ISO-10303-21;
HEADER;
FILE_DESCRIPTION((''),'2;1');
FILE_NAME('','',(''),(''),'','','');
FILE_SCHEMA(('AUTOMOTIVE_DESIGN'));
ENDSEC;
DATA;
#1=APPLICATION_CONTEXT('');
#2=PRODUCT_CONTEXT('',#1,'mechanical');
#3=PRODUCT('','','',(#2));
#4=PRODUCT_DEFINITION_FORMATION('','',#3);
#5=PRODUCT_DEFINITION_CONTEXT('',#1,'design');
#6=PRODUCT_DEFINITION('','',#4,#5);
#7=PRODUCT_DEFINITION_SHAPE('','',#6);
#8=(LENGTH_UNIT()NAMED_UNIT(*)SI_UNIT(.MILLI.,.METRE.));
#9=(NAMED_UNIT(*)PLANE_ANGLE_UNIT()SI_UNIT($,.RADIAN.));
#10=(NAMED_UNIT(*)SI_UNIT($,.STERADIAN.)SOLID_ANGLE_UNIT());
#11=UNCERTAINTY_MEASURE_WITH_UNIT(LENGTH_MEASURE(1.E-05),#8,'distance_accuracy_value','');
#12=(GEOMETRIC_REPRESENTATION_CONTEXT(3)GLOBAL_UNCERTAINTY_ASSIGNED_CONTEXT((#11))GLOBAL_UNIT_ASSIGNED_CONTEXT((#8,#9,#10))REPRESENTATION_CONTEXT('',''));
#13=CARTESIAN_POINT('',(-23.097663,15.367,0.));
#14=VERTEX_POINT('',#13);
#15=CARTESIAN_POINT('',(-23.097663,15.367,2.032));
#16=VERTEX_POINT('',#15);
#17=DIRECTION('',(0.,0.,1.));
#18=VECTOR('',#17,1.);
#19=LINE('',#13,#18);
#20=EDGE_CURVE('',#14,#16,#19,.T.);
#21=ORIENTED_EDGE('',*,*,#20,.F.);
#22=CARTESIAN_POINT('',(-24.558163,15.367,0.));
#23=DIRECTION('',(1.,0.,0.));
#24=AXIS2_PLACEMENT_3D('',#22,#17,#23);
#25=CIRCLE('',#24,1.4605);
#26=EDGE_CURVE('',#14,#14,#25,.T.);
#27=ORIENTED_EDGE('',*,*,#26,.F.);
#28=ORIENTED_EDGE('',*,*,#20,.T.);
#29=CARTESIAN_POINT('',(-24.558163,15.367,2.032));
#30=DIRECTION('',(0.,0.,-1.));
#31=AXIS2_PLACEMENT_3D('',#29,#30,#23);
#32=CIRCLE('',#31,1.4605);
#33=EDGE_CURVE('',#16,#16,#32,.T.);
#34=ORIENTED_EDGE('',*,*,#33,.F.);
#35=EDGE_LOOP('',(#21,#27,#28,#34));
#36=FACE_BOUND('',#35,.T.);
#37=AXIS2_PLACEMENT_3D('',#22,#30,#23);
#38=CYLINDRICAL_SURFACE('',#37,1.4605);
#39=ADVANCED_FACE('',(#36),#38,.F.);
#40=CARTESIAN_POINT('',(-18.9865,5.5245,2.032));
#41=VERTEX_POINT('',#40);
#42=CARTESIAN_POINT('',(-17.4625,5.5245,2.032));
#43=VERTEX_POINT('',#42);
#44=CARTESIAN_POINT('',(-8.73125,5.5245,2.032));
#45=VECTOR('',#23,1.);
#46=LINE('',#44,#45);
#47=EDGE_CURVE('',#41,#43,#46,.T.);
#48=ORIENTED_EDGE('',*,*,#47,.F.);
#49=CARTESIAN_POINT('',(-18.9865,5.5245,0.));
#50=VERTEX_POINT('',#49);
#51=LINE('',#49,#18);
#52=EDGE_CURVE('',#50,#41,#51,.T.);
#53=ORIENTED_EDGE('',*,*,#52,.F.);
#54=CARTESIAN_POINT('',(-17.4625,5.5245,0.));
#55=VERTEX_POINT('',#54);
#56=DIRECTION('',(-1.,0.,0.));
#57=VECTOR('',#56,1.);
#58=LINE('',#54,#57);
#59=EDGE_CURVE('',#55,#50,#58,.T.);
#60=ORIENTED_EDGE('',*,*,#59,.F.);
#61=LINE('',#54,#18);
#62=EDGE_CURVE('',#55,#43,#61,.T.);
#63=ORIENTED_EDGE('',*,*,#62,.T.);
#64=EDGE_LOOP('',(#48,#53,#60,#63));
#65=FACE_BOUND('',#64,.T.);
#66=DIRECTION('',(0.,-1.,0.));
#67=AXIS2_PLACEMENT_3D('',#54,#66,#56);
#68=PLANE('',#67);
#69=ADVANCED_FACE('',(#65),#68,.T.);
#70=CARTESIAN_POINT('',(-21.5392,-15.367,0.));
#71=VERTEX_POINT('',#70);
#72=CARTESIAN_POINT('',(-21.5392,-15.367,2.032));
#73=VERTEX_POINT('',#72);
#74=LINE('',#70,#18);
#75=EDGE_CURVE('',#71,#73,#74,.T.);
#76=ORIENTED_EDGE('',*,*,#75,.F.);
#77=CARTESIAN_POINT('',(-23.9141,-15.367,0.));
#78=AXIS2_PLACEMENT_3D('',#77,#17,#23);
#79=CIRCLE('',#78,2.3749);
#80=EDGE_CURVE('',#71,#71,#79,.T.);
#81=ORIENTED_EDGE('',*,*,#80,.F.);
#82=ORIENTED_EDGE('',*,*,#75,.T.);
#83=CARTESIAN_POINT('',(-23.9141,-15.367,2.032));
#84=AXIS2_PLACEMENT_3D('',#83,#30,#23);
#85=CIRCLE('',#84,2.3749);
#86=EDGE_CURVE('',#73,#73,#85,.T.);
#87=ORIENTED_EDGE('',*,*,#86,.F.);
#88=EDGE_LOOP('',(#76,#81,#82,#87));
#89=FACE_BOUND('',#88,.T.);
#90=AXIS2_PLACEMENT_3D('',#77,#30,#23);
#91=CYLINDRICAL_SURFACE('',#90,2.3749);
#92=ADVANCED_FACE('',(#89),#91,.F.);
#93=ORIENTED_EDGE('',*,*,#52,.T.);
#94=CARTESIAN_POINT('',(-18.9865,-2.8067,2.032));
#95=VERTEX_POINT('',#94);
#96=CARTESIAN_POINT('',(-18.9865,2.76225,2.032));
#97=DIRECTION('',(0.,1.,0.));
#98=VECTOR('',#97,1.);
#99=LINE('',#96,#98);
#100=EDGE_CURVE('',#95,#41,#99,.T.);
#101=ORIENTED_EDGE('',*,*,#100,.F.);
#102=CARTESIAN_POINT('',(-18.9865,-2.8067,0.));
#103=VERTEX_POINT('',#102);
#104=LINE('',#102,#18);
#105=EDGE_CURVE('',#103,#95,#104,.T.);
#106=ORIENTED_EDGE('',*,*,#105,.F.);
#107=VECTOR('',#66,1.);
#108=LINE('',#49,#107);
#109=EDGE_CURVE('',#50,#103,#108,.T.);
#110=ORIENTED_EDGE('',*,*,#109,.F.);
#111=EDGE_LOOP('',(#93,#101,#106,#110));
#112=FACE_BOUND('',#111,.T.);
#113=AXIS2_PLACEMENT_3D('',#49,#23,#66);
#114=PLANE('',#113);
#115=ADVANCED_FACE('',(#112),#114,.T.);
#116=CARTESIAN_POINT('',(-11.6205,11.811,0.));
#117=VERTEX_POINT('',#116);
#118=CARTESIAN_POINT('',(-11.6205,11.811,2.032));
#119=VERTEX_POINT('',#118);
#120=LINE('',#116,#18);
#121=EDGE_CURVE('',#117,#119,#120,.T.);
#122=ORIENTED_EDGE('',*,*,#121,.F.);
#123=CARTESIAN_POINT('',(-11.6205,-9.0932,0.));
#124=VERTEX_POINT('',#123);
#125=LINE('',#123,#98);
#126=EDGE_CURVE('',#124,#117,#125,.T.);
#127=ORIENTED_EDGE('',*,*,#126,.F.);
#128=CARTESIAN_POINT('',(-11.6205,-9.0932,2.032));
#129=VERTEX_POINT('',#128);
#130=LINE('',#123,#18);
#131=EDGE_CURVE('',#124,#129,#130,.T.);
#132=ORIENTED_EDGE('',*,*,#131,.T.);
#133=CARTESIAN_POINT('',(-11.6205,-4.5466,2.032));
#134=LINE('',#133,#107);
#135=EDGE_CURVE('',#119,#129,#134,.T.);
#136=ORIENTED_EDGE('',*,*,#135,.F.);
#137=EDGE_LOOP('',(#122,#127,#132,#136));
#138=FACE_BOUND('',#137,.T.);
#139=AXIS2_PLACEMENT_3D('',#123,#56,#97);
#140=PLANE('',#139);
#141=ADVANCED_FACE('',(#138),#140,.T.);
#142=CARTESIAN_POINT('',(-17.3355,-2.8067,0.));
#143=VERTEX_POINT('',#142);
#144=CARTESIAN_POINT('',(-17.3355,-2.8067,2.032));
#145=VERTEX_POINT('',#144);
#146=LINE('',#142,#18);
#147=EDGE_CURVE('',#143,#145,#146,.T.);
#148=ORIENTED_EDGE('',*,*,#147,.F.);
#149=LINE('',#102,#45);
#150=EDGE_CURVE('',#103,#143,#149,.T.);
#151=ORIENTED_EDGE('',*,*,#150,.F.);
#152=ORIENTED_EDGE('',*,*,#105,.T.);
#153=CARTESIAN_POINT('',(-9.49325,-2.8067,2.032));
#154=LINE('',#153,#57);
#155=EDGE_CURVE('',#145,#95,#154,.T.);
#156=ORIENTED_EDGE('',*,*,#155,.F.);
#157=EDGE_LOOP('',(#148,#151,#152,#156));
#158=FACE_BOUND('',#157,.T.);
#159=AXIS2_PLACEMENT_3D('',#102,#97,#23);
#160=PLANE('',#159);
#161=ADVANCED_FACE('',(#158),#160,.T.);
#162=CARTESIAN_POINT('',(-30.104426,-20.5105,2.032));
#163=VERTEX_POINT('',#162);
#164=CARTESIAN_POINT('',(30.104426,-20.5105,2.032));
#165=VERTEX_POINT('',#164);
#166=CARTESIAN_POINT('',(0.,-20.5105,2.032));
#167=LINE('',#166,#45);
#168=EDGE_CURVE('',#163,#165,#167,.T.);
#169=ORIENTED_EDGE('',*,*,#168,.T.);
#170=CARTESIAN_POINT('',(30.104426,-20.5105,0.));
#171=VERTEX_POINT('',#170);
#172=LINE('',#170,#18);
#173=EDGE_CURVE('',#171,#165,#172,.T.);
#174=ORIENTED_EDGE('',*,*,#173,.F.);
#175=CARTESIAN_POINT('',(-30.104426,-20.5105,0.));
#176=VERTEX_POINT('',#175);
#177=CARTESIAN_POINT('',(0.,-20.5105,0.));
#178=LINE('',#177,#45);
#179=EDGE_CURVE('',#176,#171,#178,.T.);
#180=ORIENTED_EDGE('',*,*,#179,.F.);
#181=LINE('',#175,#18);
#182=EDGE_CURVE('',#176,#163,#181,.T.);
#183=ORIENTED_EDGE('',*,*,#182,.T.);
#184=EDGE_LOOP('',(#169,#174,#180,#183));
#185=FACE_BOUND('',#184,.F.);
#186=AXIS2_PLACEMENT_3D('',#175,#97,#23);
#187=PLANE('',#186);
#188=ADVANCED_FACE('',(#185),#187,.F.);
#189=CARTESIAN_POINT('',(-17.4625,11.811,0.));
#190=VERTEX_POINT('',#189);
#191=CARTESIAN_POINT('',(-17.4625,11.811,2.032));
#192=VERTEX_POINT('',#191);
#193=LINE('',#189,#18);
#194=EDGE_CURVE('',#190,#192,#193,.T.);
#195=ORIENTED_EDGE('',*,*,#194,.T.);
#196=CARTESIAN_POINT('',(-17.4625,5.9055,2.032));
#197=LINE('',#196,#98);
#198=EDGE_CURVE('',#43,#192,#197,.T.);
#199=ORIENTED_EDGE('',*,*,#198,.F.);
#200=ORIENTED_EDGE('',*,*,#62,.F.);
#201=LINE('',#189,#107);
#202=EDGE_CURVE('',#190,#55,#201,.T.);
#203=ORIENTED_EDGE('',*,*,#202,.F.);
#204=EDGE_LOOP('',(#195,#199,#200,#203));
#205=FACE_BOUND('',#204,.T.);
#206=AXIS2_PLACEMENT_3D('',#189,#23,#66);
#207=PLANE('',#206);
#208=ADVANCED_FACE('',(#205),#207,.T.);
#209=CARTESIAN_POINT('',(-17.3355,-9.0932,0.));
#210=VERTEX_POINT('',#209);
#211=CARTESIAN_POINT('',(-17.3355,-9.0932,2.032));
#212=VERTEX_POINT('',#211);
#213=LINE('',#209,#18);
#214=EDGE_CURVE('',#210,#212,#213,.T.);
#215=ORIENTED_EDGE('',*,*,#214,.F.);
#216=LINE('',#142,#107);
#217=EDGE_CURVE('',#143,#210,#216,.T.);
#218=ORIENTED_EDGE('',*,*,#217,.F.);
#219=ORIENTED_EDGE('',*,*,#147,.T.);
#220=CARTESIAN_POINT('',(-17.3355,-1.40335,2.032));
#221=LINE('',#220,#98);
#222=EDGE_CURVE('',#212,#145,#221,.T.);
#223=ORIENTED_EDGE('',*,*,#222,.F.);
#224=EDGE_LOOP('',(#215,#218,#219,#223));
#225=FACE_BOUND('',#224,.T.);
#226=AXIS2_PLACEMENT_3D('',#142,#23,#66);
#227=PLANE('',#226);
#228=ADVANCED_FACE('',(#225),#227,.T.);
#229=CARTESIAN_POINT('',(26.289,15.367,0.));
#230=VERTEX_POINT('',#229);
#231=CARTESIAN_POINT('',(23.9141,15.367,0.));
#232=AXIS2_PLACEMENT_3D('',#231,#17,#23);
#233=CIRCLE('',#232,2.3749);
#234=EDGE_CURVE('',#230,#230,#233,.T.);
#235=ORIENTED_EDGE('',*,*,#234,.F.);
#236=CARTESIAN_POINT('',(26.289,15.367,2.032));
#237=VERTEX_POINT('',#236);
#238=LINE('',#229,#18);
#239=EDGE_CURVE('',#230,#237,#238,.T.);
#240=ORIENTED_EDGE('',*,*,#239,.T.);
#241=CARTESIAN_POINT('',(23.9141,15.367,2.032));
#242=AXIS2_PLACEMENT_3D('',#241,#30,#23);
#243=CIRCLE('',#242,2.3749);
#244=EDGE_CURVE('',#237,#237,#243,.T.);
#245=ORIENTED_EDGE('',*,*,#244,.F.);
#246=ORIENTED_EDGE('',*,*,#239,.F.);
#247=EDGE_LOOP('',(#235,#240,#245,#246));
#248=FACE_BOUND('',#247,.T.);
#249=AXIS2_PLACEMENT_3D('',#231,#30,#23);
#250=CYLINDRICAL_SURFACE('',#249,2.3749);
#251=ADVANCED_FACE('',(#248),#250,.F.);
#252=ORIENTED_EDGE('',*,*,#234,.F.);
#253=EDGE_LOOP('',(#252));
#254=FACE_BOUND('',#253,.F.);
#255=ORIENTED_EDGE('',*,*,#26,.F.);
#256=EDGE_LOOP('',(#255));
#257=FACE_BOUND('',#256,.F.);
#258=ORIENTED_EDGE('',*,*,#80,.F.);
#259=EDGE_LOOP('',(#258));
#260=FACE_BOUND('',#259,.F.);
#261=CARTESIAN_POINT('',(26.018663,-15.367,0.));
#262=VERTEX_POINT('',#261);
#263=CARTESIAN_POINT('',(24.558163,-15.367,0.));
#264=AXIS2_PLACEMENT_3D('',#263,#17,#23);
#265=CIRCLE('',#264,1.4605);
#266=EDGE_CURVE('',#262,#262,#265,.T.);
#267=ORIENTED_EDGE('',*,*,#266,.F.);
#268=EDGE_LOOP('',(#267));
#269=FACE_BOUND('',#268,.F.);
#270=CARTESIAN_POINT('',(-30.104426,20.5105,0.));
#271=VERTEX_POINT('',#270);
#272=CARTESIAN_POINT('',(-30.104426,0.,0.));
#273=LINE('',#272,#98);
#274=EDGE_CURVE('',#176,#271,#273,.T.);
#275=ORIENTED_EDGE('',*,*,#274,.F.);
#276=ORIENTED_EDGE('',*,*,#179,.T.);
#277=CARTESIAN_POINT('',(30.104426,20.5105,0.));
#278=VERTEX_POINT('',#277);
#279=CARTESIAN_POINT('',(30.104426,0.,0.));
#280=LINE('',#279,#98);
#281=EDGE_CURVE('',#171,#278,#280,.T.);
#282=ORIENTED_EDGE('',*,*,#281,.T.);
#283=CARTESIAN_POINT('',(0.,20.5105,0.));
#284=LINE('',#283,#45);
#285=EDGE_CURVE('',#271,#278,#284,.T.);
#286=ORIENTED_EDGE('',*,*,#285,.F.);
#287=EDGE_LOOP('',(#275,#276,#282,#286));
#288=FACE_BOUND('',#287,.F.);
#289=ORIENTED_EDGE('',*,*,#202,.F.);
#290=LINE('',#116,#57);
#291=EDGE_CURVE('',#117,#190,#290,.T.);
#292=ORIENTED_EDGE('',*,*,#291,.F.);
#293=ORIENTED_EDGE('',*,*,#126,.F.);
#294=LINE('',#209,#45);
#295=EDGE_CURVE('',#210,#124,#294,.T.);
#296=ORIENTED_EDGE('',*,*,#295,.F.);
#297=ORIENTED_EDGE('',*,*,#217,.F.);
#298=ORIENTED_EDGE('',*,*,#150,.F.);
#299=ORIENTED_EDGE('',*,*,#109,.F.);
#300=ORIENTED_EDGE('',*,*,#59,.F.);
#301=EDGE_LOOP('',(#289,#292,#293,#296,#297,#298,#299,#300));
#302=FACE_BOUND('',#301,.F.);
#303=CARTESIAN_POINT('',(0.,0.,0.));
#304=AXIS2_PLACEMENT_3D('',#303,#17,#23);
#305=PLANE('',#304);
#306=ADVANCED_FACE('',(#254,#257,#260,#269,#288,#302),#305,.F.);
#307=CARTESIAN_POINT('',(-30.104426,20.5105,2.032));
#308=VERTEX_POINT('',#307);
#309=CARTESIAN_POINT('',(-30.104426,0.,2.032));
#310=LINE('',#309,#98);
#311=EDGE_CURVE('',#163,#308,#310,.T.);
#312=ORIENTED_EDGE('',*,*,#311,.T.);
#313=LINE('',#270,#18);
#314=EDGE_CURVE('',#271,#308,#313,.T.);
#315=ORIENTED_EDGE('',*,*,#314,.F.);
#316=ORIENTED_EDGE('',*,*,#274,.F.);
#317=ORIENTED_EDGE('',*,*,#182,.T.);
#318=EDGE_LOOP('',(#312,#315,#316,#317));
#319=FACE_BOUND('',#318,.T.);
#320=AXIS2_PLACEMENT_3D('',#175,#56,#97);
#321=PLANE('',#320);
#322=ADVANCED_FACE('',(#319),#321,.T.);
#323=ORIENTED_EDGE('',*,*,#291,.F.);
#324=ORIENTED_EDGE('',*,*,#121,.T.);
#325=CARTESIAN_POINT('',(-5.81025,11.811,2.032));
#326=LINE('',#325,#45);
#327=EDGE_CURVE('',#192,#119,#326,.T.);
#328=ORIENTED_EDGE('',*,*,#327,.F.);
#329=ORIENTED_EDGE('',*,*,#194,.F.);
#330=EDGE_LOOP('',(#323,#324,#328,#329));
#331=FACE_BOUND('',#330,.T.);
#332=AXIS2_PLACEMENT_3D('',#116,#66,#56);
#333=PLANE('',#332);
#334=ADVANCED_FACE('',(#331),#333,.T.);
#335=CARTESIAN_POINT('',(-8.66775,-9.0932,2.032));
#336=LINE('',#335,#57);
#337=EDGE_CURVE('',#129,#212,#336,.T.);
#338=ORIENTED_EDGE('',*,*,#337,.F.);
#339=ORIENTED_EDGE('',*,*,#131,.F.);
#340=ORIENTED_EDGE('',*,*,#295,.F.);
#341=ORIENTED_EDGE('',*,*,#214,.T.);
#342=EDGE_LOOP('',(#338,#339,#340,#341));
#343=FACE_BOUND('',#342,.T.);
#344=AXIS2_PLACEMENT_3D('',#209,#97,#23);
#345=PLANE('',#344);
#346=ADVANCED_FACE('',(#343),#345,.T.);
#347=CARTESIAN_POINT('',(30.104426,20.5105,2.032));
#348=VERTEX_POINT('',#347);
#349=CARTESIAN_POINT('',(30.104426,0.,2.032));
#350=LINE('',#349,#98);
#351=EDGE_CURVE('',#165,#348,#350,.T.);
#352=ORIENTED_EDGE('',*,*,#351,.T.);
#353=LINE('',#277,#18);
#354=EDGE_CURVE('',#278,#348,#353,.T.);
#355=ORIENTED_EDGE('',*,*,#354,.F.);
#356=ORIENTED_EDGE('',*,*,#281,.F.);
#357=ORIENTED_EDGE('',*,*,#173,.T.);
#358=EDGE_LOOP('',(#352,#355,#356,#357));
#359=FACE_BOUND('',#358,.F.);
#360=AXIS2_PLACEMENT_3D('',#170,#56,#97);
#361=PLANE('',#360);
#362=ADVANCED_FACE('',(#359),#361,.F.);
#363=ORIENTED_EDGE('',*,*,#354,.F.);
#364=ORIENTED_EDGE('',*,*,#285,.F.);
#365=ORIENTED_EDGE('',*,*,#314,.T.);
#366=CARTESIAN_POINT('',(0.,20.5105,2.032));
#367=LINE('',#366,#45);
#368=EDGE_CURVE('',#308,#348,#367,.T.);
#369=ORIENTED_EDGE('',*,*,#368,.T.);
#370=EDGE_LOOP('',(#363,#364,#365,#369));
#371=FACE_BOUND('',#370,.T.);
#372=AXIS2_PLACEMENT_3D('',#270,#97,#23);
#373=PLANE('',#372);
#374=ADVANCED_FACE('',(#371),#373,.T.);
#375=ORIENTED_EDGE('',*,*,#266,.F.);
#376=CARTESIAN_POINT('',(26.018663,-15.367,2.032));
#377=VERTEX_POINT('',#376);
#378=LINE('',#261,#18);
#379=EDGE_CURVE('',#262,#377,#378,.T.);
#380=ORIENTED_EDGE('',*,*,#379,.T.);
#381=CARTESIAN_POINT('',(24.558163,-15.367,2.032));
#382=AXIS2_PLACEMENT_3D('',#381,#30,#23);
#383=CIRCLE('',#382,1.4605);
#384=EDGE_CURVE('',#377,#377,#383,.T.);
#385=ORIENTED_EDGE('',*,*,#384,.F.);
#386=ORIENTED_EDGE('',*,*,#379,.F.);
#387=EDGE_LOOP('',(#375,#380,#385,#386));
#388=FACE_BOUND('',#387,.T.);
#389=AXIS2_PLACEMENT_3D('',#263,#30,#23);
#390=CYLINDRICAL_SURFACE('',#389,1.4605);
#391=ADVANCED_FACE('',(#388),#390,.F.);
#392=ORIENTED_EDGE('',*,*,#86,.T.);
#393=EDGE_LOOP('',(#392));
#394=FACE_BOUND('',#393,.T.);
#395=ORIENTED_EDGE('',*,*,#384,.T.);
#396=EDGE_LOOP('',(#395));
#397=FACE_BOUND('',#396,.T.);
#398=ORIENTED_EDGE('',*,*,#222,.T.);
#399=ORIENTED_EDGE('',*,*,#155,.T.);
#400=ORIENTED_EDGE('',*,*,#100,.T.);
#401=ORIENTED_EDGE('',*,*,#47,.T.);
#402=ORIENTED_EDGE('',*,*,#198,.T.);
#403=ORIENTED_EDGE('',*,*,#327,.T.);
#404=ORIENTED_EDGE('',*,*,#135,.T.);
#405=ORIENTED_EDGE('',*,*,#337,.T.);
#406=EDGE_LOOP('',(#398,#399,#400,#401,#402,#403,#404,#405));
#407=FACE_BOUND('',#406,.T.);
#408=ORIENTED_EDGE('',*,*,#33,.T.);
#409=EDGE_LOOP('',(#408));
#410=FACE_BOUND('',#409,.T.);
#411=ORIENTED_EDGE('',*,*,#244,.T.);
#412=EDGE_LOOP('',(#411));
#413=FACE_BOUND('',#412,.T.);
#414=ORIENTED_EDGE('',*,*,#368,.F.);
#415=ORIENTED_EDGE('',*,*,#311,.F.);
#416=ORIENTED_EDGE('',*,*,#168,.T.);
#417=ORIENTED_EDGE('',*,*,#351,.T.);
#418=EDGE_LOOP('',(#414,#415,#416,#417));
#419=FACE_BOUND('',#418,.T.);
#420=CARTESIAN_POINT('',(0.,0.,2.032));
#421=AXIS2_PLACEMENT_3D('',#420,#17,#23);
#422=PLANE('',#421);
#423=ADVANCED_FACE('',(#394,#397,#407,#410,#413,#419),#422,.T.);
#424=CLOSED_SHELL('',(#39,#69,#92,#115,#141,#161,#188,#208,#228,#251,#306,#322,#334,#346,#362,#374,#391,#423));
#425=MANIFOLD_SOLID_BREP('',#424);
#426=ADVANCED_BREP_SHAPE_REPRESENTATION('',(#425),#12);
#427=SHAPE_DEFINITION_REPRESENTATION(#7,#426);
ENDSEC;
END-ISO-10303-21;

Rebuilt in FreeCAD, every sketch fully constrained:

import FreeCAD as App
import Part
import Sketcher

V = App.Vector
Q = App.Units.Quantity

doc = App.newDocument("Part")
body = doc.addObject("PartDesign::Body", "Body")

sketch1 = doc.addObject("Sketcher::SketchObject", "Sketch")
body.addObject(sketch1)
sketch1.AttachmentSupport = (doc.XY_Plane, [""])
sketch1.MapMode = "FlatFace"
sketch1.addGeometry(Part.LineSegment(V(-30, 21, 0), V(-30, -21, 0)), False)
sketch1.addGeometry(Part.LineSegment(V(-30, -21, 0), V(30, -21, 0)), False)
sketch1.addGeometry(Part.LineSegment(V(30, -21, 0), V(30, 21, 0)), False)
sketch1.addGeometry(Part.LineSegment(V(30, 21, 0), V(-30, 21, 0)), False)
sketch1.addConstraint(Sketcher.Constraint("Coincident", 0, 2, 1, 1))
sketch1.addConstraint(Sketcher.Constraint("Coincident", 1, 2, 2, 1))
sketch1.addConstraint(Sketcher.Constraint("Coincident", 2, 2, 3, 1))
sketch1.addConstraint(Sketcher.Constraint("Coincident", 3, 2, 0, 1))
sketch1.addConstraint(Sketcher.Constraint("Vertical", 0))
sketch1.addConstraint(Sketcher.Constraint("Horizontal", 1))
sketch1.addConstraint(Sketcher.Constraint("Vertical", 2))
sketch1.addConstraint(Sketcher.Constraint("Horizontal", 3))
sketch1.addConstraint(Sketcher.Constraint("Symmetric", 0, 2, 2, 2, -1, 1))
sketch1.addConstraint(Sketcher.Constraint("DistanceY", 0, 2, 0, 1, Q("1.615 in")))
sketch1.addConstraint(Sketcher.Constraint("DistanceX", 1, 1, 1, 2, Q("60.208851 mm")))
pad1 = doc.addObject("PartDesign::Pad", "Pad")
body.addObject(pad1)
pad1.Profile = sketch1
pad1.Length = Q("0.08 in")

sketch2 = doc.addObject("Sketcher::SketchObject", "Sketch001")
body.addObject(sketch2)
sketch2.AttachmentSupport = (doc.XY_Plane, [""])
sketch2.MapMode = "FlatFace"
sketch2.addGeometry(Part.Circle(V(-23.9, -15.4, 0), V(0, 0, 1), 2.4), False)
sketch2.addGeometry(Part.Circle(V(23.9, 15.4, 0), V(0, 0, 1), 2.4), False)
sketch2.addConstraint(Sketcher.Constraint("Equal", 0, 1))
sketch2.addConstraint(Sketcher.Constraint("Symmetric", 0, 3, 1, 3, -1, 1))
sketch2.addConstraint(Sketcher.Constraint("Diameter", 0, Q("0.187 in")))
sketch2.addConstraint(Sketcher.Constraint("DistanceY", 0, 3, 1, 3, Q("1.21 in")))
sketch2.addConstraint(Sketcher.Constraint("DistanceX", 0, 3, 1, 3, Q("1.883 in")))
pocket1 = doc.addObject("PartDesign::Pocket", "Pocket")
body.addObject(pocket1)
pocket1.Profile = sketch2
pocket1.Length = Q("0.48 in")
pocket1.Reversed = True

sketch3 = doc.addObject("Sketcher::SketchObject", "Sketch002")
body.addObject(sketch3)
sketch3.AttachmentSupport = (doc.XY_Plane, [""])
sketch3.MapMode = "FlatFace"
sketch3.addGeometry(Part.Circle(V(-24.6, 15.4, 0), V(0, 0, 1), 1.5), False)
sketch3.addGeometry(Part.Circle(V(24.6, -15.4, 0), V(0, 0, 1), 1.5), False)
sketch3.addConstraint(Sketcher.Constraint("Equal", 0, 1))
sketch3.addConstraint(Sketcher.Constraint("Symmetric", 0, 3, 1, 3, -1, 1))
sketch3.addConstraint(Sketcher.Constraint("Diameter", 0, Q("0.115 in")))
sketch3.addConstraint(Sketcher.Constraint("DistanceY", 1, 3, 0, 3, Q("1.21 in")))
sketch3.addConstraint(Sketcher.Constraint("DistanceX", 0, 3, -1, 1, Q("24.558163 mm")))
pocket2 = doc.addObject("PartDesign::Pocket", "Pocket001")
body.addObject(pocket2)
pocket2.Profile = sketch3
pocket2.Length = Q("0.48 in")
pocket2.Reversed = True

sketch4 = doc.addObject("Sketcher::SketchObject", "Sketch003")
body.addObject(sketch4)
sketch4.AttachmentSupport = (doc.XY_Plane, [""])
sketch4.MapMode = "FlatFace"
sketch4.addGeometry(Part.LineSegment(V(-11.6, -9.1, 0), V(-11.6, 11.8, 0)), False)
sketch4.addGeometry(Part.LineSegment(V(-11.6, 11.8, 0), V(-17.5, 11.8, 0)), False)
sketch4.addGeometry(Part.LineSegment(V(-17.5, 11.8, 0), V(-17.5, 5.5, 0)), False)
sketch4.addGeometry(Part.LineSegment(V(-17.5, 5.5, 0), V(-19, 5.5, 0)), False)
sketch4.addGeometry(Part.LineSegment(V(-19, 5.5, 0), V(-19, -2.8, 0)), False)
sketch4.addGeometry(Part.LineSegment(V(-19, -2.8, 0), V(-17.3, -2.8, 0)), False)
sketch4.addGeometry(Part.LineSegment(V(-17.3, -2.8, 0), V(-17.3, -9.1, 0)), False)
sketch4.addGeometry(Part.LineSegment(V(-17.3, -9.1, 0), V(-11.6, -9.1, 0)), False)
sketch4.addConstraint(Sketcher.Constraint("Coincident", 0, 2, 1, 1))
sketch4.addConstraint(Sketcher.Constraint("Coincident", 1, 2, 2, 1))
sketch4.addConstraint(Sketcher.Constraint("Coincident", 2, 2, 3, 1))
sketch4.addConstraint(Sketcher.Constraint("Coincident", 3, 2, 4, 1))
sketch4.addConstraint(Sketcher.Constraint("Coincident", 4, 2, 5, 1))
sketch4.addConstraint(Sketcher.Constraint("Coincident", 5, 2, 6, 1))
sketch4.addConstraint(Sketcher.Constraint("Coincident", 6, 2, 7, 1))
sketch4.addConstraint(Sketcher.Constraint("Coincident", 7, 2, 0, 1))
sketch4.addConstraint(Sketcher.Constraint("Vertical", 0))
sketch4.addConstraint(Sketcher.Constraint("Horizontal", 1))
sketch4.addConstraint(Sketcher.Constraint("Vertical", 2))
sketch4.addConstraint(Sketcher.Constraint("Horizontal", 3))
sketch4.addConstraint(Sketcher.Constraint("Vertical", 4))
sketch4.addConstraint(Sketcher.Constraint("Horizontal", 5))
sketch4.addConstraint(Sketcher.Constraint("Vertical", 6))
sketch4.addConstraint(Sketcher.Constraint("Horizontal", 7))
sketch4.addConstraint(Sketcher.Constraint("Equal", 2, 6))
sketch4.addConstraint(Sketcher.Constraint("DistanceX", 1, 2, 1, 1, Q("0.23 in")))
sketch4.addConstraint(Sketcher.Constraint("DistanceX", 3, 2, 3, 1, Q("0.06 in")))
sketch4.addConstraint(Sketcher.Constraint("DistanceX", 5, 1, 5, 2, Q("0.065 in")))
sketch4.addConstraint(Sketcher.Constraint("DistanceY", 0, 1, 0, 2, Q("0.823 in")))
sketch4.addConstraint(Sketcher.Constraint("DistanceY", 4, 2, 4, 1, Q("0.328 in")))
sketch4.addConstraint(Sketcher.Constraint("DistanceY", -1, 1, 0, 2, Q("0.465 in")))
sketch4.addConstraint(Sketcher.Constraint("DistanceX", 1, 2, -1, 1, Q("0.6875 in")))
pocket3 = doc.addObject("PartDesign::Pocket", "Pocket002")
body.addObject(pocket3)
pocket3.Profile = sketch4
pocket3.Length = Q("0.09 in")
pocket3.Reversed = True

doc.recompute()
